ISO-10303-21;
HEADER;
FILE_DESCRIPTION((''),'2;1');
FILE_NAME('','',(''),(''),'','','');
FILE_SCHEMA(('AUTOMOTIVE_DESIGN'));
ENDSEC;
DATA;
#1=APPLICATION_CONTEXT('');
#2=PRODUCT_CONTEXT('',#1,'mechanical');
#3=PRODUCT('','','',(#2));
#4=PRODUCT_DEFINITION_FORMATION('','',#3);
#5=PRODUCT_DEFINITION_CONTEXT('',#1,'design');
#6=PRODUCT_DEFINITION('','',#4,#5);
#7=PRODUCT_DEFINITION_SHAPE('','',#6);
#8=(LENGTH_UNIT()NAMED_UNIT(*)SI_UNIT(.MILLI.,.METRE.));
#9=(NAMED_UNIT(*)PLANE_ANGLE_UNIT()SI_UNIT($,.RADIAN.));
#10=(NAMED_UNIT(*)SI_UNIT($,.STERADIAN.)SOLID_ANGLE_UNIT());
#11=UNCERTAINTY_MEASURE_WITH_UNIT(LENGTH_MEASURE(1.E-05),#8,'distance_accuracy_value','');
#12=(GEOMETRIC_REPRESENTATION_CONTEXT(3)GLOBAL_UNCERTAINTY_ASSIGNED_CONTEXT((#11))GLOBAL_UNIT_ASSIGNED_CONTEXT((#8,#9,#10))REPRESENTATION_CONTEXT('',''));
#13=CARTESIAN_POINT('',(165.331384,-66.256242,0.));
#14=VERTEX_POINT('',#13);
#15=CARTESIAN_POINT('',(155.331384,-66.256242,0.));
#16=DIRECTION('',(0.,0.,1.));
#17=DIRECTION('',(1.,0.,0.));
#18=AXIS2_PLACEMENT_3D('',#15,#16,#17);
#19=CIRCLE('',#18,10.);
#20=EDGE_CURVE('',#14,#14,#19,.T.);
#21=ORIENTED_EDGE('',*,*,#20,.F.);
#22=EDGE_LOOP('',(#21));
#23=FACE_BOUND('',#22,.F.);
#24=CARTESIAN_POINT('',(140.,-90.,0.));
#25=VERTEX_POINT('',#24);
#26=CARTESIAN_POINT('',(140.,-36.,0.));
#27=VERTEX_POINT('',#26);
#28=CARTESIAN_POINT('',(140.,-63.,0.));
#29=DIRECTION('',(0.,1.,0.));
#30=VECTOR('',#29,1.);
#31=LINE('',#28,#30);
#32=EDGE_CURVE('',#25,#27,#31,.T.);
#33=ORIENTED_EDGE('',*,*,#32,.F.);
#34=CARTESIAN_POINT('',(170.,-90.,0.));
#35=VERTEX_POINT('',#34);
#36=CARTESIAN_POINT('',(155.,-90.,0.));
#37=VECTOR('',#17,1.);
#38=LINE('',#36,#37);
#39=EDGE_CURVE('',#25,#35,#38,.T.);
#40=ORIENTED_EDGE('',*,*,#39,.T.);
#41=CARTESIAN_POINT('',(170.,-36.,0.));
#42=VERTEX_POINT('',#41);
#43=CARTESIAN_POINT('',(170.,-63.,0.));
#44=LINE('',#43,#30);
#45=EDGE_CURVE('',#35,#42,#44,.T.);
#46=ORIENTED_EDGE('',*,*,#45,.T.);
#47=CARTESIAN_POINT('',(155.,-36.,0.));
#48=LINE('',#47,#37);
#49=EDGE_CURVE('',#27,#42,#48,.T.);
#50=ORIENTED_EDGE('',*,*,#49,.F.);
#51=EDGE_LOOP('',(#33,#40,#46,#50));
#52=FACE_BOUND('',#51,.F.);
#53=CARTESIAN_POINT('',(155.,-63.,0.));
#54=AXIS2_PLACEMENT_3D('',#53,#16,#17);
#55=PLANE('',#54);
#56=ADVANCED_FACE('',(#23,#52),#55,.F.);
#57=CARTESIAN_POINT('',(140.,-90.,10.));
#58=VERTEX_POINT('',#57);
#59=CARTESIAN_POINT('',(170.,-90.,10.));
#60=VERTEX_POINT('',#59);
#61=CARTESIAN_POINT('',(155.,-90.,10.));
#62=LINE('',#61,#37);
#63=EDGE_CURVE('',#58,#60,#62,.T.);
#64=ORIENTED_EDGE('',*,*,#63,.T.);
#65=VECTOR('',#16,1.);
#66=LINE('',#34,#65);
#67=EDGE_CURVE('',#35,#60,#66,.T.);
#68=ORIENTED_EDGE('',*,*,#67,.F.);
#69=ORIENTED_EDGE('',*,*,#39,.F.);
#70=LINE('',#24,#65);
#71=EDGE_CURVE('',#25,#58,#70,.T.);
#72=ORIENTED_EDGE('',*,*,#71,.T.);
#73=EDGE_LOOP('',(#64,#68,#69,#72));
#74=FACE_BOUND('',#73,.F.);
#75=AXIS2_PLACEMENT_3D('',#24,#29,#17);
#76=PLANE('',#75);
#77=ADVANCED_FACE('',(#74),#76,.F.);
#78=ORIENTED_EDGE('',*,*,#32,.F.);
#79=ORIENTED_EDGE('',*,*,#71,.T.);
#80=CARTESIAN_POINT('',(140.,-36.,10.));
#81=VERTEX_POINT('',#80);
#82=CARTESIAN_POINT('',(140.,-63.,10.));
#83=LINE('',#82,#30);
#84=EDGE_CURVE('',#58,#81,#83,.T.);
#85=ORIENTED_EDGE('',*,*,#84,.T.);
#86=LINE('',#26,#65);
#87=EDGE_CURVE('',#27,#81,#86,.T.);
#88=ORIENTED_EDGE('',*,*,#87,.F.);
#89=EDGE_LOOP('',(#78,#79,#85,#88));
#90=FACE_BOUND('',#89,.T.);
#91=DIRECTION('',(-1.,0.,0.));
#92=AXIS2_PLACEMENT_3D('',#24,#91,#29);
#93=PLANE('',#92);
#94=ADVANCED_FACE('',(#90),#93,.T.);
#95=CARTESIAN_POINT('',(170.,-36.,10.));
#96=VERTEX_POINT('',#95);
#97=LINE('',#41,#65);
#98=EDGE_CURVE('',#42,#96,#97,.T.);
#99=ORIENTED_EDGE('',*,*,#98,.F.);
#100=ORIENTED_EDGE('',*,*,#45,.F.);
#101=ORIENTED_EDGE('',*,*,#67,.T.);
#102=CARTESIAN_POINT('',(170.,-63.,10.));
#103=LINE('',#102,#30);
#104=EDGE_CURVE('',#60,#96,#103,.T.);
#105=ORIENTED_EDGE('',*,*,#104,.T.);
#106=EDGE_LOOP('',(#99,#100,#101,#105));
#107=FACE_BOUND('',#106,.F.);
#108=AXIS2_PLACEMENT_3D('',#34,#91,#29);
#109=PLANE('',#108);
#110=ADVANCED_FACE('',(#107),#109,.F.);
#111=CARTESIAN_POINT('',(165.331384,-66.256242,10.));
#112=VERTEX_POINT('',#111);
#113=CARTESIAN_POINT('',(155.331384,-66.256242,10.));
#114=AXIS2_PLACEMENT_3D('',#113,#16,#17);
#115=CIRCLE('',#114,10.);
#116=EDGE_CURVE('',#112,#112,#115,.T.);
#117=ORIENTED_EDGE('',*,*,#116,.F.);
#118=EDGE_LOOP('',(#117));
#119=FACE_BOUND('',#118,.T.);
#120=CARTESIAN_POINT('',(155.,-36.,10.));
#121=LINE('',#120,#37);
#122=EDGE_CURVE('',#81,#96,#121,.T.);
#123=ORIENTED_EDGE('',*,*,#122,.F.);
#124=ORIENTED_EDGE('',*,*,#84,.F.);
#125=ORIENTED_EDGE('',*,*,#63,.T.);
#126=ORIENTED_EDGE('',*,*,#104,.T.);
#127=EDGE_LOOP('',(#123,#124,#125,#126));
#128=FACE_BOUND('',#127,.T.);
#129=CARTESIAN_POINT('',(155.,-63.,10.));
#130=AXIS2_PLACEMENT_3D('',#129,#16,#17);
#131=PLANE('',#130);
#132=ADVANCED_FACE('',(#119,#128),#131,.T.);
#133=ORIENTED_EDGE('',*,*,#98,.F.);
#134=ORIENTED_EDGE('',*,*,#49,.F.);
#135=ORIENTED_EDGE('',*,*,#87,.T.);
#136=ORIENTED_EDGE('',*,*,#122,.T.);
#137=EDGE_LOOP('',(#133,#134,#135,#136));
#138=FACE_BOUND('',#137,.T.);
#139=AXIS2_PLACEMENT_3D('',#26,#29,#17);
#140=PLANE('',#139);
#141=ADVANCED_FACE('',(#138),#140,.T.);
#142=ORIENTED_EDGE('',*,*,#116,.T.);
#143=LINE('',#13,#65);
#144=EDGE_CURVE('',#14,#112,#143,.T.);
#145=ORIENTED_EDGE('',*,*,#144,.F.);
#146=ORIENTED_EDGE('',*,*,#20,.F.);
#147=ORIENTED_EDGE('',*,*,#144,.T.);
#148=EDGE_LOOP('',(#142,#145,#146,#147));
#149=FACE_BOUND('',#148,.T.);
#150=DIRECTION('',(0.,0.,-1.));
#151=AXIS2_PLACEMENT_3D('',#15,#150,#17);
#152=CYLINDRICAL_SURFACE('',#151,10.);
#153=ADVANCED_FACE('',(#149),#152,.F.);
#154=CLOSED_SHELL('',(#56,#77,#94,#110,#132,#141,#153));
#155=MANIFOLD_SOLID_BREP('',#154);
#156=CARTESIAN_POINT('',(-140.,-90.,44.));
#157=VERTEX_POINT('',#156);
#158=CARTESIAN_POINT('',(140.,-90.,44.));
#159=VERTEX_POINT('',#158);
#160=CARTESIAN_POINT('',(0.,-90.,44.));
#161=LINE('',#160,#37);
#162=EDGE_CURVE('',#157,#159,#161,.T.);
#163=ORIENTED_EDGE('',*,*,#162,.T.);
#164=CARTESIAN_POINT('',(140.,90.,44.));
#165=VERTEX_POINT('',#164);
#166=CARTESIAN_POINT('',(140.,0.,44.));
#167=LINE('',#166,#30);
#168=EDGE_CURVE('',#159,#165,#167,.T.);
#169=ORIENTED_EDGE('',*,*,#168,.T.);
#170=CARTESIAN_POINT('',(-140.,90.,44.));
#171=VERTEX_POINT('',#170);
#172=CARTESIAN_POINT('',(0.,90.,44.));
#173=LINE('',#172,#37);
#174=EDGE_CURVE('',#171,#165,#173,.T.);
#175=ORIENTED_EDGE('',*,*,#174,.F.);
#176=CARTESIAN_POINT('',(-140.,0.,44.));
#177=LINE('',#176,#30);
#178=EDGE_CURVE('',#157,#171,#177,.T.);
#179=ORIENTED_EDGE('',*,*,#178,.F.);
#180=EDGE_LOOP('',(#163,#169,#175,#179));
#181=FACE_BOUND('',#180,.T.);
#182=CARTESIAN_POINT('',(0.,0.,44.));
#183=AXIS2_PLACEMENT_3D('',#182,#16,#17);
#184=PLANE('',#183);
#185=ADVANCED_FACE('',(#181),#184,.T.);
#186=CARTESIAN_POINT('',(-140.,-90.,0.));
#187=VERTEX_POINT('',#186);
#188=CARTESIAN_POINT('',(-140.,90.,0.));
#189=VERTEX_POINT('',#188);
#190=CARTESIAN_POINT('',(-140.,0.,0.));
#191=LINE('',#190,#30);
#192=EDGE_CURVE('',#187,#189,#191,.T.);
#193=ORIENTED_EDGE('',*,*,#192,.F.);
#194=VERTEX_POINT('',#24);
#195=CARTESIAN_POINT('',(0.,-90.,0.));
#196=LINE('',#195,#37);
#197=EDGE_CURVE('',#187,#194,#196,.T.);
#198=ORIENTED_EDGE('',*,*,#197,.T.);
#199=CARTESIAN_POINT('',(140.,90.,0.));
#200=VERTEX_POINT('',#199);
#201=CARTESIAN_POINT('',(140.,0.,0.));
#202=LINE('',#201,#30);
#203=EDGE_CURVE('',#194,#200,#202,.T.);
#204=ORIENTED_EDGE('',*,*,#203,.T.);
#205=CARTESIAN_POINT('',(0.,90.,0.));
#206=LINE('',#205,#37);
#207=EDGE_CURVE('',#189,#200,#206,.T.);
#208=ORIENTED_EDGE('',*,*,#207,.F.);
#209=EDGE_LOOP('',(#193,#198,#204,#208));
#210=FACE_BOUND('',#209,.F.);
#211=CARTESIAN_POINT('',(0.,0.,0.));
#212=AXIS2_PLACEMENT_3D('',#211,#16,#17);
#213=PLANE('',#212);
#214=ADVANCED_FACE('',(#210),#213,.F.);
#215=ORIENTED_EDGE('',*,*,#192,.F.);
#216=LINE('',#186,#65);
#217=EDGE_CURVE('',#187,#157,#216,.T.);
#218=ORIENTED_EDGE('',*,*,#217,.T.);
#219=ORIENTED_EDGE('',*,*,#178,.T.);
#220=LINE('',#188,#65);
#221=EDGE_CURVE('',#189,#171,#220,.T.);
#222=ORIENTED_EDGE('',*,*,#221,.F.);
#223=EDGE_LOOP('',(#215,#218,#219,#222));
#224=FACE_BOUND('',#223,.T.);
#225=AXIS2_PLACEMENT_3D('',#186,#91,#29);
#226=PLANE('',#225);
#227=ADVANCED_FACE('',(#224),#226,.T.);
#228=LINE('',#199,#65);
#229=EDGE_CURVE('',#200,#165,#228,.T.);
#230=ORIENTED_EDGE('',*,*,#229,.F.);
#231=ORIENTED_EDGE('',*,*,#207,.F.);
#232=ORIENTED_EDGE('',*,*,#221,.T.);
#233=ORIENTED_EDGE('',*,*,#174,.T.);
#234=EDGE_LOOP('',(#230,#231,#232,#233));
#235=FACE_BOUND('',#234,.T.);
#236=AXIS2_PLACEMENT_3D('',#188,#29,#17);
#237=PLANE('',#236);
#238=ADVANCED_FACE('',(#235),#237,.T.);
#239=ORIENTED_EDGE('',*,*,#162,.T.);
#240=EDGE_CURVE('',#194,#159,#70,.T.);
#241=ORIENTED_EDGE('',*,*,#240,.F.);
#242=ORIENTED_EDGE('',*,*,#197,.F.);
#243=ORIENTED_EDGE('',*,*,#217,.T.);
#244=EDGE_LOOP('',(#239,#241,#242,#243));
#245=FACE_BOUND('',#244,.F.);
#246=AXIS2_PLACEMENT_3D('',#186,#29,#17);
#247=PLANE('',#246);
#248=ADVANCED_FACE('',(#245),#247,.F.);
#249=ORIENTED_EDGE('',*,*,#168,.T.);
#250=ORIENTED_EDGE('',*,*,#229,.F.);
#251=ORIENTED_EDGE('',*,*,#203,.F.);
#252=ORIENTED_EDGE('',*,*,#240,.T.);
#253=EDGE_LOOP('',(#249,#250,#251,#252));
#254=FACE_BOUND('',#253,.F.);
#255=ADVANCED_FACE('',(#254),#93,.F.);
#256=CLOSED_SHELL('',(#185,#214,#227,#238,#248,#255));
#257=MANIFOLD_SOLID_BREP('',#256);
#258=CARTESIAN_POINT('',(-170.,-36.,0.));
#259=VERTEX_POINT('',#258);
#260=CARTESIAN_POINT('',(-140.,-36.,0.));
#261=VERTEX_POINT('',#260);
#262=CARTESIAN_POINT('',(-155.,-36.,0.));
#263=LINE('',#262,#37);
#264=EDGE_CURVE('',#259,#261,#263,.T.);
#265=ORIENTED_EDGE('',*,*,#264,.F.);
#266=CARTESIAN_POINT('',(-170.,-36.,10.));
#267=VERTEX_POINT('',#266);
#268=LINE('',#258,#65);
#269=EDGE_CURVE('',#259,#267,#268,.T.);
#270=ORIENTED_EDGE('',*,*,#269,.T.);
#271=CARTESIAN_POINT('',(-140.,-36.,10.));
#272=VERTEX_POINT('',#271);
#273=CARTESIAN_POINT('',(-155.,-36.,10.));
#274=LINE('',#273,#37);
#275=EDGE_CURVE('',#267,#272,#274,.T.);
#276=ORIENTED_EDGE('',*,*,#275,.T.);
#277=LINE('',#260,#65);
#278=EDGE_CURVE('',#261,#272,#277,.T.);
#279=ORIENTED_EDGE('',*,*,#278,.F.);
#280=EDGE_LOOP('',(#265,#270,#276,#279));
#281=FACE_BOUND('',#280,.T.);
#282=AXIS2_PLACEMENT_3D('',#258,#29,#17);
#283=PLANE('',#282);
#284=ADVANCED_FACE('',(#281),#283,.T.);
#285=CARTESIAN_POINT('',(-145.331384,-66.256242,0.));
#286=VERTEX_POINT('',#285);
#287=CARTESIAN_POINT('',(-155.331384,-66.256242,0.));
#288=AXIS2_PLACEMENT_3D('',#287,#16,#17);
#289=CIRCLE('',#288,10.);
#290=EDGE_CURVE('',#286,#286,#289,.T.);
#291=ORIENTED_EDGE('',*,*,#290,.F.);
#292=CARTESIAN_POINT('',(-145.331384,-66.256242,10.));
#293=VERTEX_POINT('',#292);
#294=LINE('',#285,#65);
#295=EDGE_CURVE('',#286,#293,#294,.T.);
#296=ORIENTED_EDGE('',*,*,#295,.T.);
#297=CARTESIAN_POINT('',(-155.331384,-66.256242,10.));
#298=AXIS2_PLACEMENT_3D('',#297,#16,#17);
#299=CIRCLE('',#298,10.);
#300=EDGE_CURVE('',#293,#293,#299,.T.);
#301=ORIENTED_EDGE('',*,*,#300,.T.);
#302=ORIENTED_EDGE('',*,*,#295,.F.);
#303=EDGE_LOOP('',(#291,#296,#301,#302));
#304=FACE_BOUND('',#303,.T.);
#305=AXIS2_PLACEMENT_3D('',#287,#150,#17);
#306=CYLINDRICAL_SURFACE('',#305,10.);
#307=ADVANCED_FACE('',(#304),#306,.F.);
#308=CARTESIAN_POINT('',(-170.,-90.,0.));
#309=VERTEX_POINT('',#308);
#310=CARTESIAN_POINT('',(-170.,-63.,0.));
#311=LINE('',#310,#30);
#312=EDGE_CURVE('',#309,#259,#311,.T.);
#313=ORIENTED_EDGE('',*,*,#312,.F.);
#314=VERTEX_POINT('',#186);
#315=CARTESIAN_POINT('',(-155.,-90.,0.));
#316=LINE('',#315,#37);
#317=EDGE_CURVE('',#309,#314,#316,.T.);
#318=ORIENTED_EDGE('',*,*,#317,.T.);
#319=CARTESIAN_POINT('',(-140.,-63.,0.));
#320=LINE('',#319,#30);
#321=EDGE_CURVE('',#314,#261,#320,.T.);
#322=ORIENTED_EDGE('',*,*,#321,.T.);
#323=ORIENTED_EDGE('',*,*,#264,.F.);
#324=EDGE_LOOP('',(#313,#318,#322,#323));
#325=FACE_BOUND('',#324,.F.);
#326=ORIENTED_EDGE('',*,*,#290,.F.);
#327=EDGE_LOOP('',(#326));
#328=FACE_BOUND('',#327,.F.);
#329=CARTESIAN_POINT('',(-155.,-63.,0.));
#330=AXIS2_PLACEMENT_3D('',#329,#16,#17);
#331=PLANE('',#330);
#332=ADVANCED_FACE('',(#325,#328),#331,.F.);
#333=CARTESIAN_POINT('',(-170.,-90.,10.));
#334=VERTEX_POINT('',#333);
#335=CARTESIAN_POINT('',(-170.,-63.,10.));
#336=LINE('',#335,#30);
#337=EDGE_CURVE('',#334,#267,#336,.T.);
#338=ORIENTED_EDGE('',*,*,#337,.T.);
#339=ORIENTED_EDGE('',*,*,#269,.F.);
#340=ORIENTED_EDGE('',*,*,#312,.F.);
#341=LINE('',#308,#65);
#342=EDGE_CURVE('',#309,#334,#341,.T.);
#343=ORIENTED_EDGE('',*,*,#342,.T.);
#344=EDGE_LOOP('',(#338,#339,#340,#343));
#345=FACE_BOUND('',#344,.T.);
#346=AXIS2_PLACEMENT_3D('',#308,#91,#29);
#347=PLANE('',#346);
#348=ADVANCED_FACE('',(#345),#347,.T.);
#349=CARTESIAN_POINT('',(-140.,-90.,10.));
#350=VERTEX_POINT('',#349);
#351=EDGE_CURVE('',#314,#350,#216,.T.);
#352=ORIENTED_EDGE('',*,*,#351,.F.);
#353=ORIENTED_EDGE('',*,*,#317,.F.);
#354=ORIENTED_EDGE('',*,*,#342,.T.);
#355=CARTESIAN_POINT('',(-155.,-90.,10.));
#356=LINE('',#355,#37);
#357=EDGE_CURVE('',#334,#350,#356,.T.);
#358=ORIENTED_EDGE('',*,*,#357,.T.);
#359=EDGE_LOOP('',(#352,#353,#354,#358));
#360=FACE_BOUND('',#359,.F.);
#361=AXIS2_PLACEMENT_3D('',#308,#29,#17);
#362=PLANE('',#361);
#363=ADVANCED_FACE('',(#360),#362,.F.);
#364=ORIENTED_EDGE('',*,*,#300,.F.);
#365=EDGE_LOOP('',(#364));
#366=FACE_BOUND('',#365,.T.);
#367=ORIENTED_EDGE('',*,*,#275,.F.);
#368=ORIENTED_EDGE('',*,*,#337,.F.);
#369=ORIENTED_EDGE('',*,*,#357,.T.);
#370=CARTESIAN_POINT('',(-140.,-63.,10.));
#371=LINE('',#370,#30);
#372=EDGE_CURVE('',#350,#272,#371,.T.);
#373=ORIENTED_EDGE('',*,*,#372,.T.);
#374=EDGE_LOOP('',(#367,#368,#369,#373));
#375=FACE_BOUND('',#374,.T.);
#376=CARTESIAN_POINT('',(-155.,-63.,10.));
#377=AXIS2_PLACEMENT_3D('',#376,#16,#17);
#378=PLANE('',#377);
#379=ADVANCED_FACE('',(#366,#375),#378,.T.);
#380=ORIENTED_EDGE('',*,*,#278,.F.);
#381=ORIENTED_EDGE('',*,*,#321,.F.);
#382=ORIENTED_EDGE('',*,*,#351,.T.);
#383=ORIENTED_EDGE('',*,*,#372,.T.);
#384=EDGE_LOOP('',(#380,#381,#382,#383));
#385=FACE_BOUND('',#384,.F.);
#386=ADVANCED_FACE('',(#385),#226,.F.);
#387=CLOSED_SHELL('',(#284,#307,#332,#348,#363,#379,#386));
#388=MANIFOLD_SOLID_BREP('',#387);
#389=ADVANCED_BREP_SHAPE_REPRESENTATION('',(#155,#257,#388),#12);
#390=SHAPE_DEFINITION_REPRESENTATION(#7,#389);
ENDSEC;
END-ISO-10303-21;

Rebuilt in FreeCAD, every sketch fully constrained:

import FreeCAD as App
import Part
import Sketcher


def add_polygon(sketch, points):
    """Adds a closed chain of lines whose ends are joined by coincident constraints."""
    first, n = sketch.GeometryCount, len(points)
    for a, b in zip(points, points[1:] + points[:1]):
        sketch.addGeometry(Part.LineSegment(App.Vector(*a, 0), App.Vector(*b, 0)), False)
    for i in range(n):
        sketch.addConstraint(Sketcher.Constraint("Coincident", first + i, 2, first + (i + 1) % n, 1))

doc = App.newDocument("Part")
body = doc.addObject("PartDesign::Body", "Body")

# Sketch on XY plane
sketch1 = body.newObject("Sketcher::SketchObject", "Sketch")
sketch1.AttachmentSupport = (doc.getObject("XY_Plane"), [""])
sketch1.MapMode = "FlatFace"
add_polygon(sketch1, [(-140, 90), (-140, -90), (140, -90), (140, 90)])  # lines 0-3
sketch1.addConstraint(Sketcher.Constraint("Vertical", 0))
sketch1.addConstraint(Sketcher.Constraint("Horizontal", 1))
sketch1.addConstraint(Sketcher.Constraint("Vertical", 2))
sketch1.addConstraint(Sketcher.Constraint("Horizontal", 3))
sketch1.addConstraint(Sketcher.Constraint("Symmetric", 0, 2, 2, 2, -1, 1))
sketch1.addConstraint(Sketcher.Constraint("DistanceX", 1, 1, 1, 2, 280.0))
sketch1.addConstraint(Sketcher.Constraint("DistanceY", 0, 2, 0, 1, 180.0))
pad1 = body.newObject("PartDesign::Pad", "Pad")
pad1.Profile = sketch1
pad1.Length = 44
body2 = doc.addObject("PartDesign::Body", "Body001")
body2.AllowCompound = True

# Sketch on XY plane
sketch2 = body2.newObject("Sketcher::SketchObject", "Sketch001")
sketch2.AttachmentSupport = (doc.getObject("XY_Plane001"), [""])
sketch2.MapMode = "FlatFace"
add_polygon(sketch2, [(140, -36), (140, -90), (170, -90), (170, -36)])  # lines 0-3
sketch2.addGeometry(Part.Circle(App.Vector(155.331384, -66.256242, 0), App.Vector(0, 0, 1), 10), False)  # 4
add_polygon(sketch2, [(-170, -36), (-170, -90), (-140, -90), (-140, -36)])  # lines 5-8
sketch2.addGeometry(Part.Circle(App.Vector(-155.331384, -66.256242, 0), App.Vector(0, 0, 1), 10), False)  # 9
sketch2.addConstraint(Sketcher.Constraint("Vertical", 0))
sketch2.addConstraint(Sketcher.Constraint("Horizontal", 1))
sketch2.addConstraint(Sketcher.Constraint("Vertical", 2))
sketch2.addConstraint(Sketcher.Constraint("Horizontal", 3))
sketch2.addConstraint(Sketcher.Constraint("Vertical", 5))
sketch2.addConstraint(Sketcher.Constraint("Horizontal", 6))
sketch2.addConstraint(Sketcher.Constraint("Vertical", 7))
sketch2.addConstraint(Sketcher.Constraint("Horizontal", 8))
sketch2.addConstraint(Sketcher.Constraint("Equal", 4, 9))
sketch2.addConstraint(Sketcher.Constraint("Symmetric", 4, 3, 9, 3, -2))
sketch2.addConstraint(Sketcher.Constraint("Symmetric", 1, 2, 5, 2, -2))
sketch2.addConstraint(Sketcher.Constraint("Symmetric", 3, 2, 7, 2, -2))
sketch2.addConstraint(Sketcher.Constraint("Diameter", 4, 20.0))
sketch2.addConstraint(Sketcher.Constraint("DistanceX", 1, 1, 1, 2, 30.0))
sketch2.addConstraint(Sketcher.Constraint("DistanceY", 0, 2, 0, 1, 54.0))
sketch2.addConstraint(Sketcher.Constraint("DistanceX", -1, 1, 0, 2, 140.0))
sketch2.addConstraint(Sketcher.Constraint("DistanceY", 0, 2, -1, 1, 90.0))
sketch2.addConstraint(Sketcher.Constraint("DistanceY", 4, 3, -1, 1, 66.256242))
sketch2.addConstraint(Sketcher.Constraint("DistanceX", 9, 3, 4, 3, 310.662768))
pad2 = body2.newObject("PartDesign::Pad", "Pad001")
pad2.Profile = sketch2
pad2.Length = 10

doc.recompute()
